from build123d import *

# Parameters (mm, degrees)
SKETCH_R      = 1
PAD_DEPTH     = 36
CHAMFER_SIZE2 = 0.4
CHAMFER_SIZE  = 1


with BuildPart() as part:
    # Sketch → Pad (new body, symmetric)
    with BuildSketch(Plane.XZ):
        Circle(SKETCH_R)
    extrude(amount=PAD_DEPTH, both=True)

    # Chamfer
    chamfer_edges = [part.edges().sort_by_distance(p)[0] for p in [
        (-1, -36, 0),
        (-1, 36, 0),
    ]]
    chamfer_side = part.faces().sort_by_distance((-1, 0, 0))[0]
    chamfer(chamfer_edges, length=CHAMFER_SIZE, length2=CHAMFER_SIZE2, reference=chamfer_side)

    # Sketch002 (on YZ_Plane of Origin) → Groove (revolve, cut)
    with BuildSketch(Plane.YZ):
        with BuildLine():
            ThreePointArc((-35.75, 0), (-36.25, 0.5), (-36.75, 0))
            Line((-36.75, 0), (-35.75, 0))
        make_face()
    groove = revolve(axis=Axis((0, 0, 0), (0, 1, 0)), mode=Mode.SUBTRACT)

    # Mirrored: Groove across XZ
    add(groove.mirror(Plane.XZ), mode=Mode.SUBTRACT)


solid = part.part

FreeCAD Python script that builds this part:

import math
import FreeCAD as App
import Part
import Sketcher

V = App.Vector


def edges_at(feature, points):
    """Names of the edges that pass closest to the given points."""
    edges = feature.Shape.Edges
    near = lambda p: min(range(len(edges)), key=lambda i: edges[i].distToShape(Part.Vertex(*p))[0])
    return sorted({f"Edge{near(p) + 1}" for p in points})

doc = App.newDocument("Part")
body = doc.addObject("PartDesign::Body", "Body")

# Sketch on XZ plane
sketch1 = body.newObject("Sketcher::SketchObject", "Sketch")
sketch1.AttachmentSupport = (doc.getObject("XZ_Plane"), [""])
sketch1.MapMode = "FlatFace"
sketch1.addGeometry(Part.Circle(V(0, 0, 0), V(0, 0, 1), 1), False)
sketch1.addConstraint([
    Sketcher.Constraint("Coincident", 0, 3, -1, 1),
    Sketcher.Constraint("Diameter", 0, 2.0),
])
pad1 = body.newObject("PartDesign::Pad", "Pad")
pad1.Profile = sketch1
pad1.Length = 72
pad1.Midplane = True
doc.recompute()

chamfer = body.newObject("PartDesign::Chamfer", "Chamfer")
chamfer.Base = (pad1, edges_at(pad1, [(-1, -36, 0), (-1, 36, 0)]))
chamfer.ChamferType = "Two distances"
chamfer.Size = 1
chamfer.Size2 = 0.4

# Sketch on YZ plane
sketch2 = body.newObject("Sketcher::SketchObject", "Sketch001")
sketch2.AttachmentSupport = (doc.getObject("YZ_Plane"), [""])
sketch2.MapMode = "FlatFace"
sketch2.addGeometry([
    Part.ArcOfCircle(Part.Circle(V(-36.2, 0, 0), V(0, 0, 1), 0.5), math.radians(0), math.radians(180)),
    Part.LineSegment(V(-36.8, 0, 0), V(-35.8, 0, 0)),
], False)
sketch2.addConstraint([
    Sketcher.Constraint("Coincident", 0, 1, 1, 2),
    Sketcher.Constraint("Coincident", 1, 1, 0, 2),
    Sketcher.Constraint("Horizontal", 1),
    Sketcher.Constraint("PointOnObject", 0, 3, -1),
    Sketcher.Constraint("PointOnObject", 0, 1, -1),
    Sketcher.Constraint("Radius", 0, 0.5),
    Sketcher.Constraint("DistanceX", 0, 3, -1, 1, 36.25),
])
groove = body.newObject("PartDesign::Groove", "Groove")
groove.Profile = sketch2
groove.ReferenceAxis = (sketch2, ["H_Axis"])
groove.Angle = 360
doc.recompute()

mirrored = body.newObject("PartDesign::Mirrored", "Mirrored")
mirrored.Originals = [groove]
mirrored.MirrorPlane = (doc.getObject("XZ_Plane"), [""])
body.Tip = mirrored

doc.recompute()
